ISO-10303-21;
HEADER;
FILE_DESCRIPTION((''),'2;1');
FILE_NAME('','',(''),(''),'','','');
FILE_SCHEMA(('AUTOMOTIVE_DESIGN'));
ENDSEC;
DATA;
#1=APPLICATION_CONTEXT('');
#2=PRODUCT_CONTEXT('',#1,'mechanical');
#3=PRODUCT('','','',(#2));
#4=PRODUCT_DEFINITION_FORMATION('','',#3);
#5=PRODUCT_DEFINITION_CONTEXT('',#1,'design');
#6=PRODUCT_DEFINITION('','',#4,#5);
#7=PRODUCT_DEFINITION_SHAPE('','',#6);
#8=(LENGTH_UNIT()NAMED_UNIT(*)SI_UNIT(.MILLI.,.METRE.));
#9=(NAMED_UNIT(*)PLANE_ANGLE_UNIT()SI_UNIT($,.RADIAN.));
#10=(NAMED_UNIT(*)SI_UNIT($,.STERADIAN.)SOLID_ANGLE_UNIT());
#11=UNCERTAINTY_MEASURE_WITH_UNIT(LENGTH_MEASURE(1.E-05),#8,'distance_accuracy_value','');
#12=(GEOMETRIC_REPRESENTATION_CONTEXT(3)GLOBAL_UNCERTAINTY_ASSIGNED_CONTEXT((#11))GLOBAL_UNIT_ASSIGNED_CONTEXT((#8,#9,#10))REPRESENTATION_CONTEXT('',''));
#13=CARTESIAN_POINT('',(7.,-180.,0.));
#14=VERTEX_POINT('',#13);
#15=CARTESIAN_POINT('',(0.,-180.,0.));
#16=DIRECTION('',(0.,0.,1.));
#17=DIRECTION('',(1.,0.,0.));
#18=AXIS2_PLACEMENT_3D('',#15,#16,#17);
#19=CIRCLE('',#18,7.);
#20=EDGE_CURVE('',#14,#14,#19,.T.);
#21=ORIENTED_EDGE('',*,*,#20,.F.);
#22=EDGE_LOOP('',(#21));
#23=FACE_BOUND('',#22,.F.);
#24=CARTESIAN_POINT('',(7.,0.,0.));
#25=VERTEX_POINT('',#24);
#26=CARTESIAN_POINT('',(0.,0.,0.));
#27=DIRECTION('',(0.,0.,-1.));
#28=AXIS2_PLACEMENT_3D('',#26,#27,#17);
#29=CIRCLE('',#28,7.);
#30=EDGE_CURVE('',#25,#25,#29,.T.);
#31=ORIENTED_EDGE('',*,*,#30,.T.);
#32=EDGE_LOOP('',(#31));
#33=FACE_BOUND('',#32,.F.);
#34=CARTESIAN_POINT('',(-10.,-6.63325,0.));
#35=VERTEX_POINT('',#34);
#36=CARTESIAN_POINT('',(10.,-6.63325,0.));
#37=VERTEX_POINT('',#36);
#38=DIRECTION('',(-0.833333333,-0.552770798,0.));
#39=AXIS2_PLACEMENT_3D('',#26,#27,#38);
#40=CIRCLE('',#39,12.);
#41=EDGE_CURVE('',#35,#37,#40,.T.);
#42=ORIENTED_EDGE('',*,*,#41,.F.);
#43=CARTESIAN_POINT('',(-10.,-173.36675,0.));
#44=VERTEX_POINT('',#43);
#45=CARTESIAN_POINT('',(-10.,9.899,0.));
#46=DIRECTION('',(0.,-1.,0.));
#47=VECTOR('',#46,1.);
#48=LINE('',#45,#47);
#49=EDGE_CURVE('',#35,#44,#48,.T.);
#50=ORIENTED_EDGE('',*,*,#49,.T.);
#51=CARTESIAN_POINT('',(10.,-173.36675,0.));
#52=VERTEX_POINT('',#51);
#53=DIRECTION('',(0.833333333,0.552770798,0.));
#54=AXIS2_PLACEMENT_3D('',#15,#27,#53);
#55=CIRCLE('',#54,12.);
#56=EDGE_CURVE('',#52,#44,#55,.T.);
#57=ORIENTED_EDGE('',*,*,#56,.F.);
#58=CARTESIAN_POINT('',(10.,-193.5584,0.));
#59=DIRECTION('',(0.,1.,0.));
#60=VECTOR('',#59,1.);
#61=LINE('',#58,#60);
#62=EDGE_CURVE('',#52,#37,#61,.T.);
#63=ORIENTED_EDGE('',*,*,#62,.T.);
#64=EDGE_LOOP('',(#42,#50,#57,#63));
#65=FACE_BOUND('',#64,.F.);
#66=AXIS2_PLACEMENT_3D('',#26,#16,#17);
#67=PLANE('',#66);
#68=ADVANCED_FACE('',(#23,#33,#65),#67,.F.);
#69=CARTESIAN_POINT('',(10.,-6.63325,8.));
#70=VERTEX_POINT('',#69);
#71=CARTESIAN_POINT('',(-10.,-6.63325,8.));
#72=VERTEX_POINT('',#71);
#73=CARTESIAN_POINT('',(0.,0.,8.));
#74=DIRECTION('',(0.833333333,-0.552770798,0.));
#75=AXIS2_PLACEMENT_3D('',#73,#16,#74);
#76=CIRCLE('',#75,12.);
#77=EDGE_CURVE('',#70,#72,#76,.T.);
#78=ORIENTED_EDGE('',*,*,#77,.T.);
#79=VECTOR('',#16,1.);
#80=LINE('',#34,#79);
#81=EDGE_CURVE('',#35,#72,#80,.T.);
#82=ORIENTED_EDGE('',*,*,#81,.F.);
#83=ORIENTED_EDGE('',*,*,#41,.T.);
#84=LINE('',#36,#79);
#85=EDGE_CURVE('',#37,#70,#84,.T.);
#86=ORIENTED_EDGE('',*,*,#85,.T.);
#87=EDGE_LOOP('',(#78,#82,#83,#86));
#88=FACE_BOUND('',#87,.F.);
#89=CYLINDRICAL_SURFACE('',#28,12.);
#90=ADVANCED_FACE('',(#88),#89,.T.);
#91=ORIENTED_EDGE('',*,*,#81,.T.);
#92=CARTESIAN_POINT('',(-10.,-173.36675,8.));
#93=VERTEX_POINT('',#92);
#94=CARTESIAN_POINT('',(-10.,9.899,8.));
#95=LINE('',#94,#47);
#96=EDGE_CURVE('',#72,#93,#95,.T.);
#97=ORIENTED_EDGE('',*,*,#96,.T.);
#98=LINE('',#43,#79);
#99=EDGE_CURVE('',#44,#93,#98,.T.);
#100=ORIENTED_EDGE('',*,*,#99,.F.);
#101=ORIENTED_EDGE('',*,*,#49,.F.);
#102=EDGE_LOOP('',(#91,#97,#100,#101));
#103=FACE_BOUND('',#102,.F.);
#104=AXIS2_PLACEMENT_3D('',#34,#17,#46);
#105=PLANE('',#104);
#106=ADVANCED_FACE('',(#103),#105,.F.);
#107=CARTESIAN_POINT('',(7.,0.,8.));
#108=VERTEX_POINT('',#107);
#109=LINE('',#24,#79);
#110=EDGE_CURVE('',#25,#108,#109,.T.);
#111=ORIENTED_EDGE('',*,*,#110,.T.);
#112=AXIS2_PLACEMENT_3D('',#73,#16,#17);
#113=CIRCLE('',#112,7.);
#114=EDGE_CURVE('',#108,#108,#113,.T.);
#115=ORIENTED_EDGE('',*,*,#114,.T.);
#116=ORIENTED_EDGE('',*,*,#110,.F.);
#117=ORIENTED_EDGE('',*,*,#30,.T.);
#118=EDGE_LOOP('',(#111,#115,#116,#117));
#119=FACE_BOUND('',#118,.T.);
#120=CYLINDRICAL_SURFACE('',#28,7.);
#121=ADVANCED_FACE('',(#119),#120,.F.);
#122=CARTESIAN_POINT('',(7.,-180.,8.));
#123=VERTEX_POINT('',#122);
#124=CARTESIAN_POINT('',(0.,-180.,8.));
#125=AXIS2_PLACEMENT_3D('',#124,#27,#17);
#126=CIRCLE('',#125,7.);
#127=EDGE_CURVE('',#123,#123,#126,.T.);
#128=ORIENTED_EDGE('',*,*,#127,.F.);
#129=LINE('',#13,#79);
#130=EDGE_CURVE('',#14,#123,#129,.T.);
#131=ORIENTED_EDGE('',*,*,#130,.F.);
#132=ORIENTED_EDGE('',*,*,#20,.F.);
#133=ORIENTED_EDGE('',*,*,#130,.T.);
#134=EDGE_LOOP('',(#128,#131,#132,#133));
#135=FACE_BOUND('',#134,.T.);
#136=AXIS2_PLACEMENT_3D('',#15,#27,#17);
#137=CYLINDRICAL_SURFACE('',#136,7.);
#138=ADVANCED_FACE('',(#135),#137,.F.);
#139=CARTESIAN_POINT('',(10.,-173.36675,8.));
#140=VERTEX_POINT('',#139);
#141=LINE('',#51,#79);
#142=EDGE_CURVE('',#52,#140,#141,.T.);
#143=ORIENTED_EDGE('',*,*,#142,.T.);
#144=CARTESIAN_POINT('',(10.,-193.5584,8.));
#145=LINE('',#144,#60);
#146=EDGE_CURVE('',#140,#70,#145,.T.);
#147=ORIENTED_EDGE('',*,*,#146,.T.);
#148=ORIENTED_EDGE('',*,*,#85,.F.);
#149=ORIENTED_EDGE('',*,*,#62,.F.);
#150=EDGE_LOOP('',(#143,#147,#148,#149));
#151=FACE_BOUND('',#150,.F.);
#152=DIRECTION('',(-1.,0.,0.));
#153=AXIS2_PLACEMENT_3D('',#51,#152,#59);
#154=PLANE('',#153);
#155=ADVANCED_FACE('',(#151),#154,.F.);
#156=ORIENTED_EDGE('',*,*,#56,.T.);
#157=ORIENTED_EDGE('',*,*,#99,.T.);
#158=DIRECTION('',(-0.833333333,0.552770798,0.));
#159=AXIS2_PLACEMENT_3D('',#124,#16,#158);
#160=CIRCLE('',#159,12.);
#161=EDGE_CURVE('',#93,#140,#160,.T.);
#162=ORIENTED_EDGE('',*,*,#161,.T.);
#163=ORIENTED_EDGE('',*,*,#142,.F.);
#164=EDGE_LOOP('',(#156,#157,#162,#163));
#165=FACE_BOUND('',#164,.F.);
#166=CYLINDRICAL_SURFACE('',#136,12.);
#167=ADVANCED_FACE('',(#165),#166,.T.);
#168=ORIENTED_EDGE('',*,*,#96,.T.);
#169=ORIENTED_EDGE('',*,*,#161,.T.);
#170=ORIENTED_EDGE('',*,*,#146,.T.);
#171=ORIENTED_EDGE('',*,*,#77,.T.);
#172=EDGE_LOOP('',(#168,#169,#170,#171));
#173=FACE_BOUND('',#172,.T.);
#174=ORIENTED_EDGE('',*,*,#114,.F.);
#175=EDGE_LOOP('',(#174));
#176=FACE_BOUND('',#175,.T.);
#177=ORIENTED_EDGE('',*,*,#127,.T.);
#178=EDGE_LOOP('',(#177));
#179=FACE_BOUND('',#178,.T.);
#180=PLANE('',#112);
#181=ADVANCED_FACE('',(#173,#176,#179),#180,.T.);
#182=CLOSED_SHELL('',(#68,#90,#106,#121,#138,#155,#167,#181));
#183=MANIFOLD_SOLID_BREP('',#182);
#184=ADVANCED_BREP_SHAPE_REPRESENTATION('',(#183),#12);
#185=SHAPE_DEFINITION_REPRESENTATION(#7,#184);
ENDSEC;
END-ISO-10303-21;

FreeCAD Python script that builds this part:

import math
import FreeCAD as App
import Part
import Sketcher
from FreeCAD import Vector

doc = App.newDocument("Part")
body = doc.addObject("PartDesign::Body", "Body")

# Sketch on XY plane
sketch1 = body.newObject("Sketcher::SketchObject", "Sketch")
sketch1.AttachmentSupport = (doc.getObject("XY_Plane"), [""])
sketch1.MapMode = "FlatFace"
sketch1.addGeometry([
    Part.LineSegment(Vector(-10, -7, 0), Vector(-10, -173, 0)),  # 0
    Part.ArcOfCircle(Part.Circle(Vector(0, -180, 0), Vector(0, 0, 1), 12), math.radians(146), math.radians(394)),  # 1
    Part.LineSegment(Vector(10, -173, 0), Vector(10, -7, 0)),  # 2
    Part.ArcOfCircle(Part.Circle(Vector(0, 0, 0), Vector(0, 0, 1), 12), math.radians(-34), math.radians(214)),  # 3
    Part.Circle(Vector(0, 0, 0), Vector(0, 0, 1), 7),  # 4
    Part.Circle(Vector(0, -180, 0), Vector(0, 0, 1), 7),  # 5
], False)
sketch1.addConstraint([
    Sketcher.Constraint("Coincident", 0, 2, 1, 1),
    Sketcher.Constraint("Coincident", 1, 2, 2, 1),
    Sketcher.Constraint("Coincident", 2, 2, 3, 1),
    Sketcher.Constraint("Coincident", 3, 2, 0, 1),
    Sketcher.Constraint("Vertical", 0),
    Sketcher.Constraint("Vertical", 2),
    Sketcher.Constraint("Coincident", 3, 3, -1, 1),
    Sketcher.Constraint("Coincident", 4, 3, -1, 1),
    Sketcher.Constraint("Coincident", 5, 3, 1, 3),
    Sketcher.Constraint("Equal", 1, 3),
    Sketcher.Constraint("Equal", 4, 5),
    Sketcher.Constraint("Symmetric", 0, 2, 1, 2, -2),
    Sketcher.Constraint("Diameter", 4, 14.0),
    Sketcher.Constraint("Radius", 1, 12.0),
    Sketcher.Constraint("DistanceY", 1, 3, -1, 1, 180.0),
    Sketcher.Constraint("DistanceX", 0, 2, -1, 1, 10.0),
])
pad1 = body.newObject("PartDesign::Pad", "Pad")
pad1.Profile = sketch1
pad1.Length = 8

doc.recompute()
